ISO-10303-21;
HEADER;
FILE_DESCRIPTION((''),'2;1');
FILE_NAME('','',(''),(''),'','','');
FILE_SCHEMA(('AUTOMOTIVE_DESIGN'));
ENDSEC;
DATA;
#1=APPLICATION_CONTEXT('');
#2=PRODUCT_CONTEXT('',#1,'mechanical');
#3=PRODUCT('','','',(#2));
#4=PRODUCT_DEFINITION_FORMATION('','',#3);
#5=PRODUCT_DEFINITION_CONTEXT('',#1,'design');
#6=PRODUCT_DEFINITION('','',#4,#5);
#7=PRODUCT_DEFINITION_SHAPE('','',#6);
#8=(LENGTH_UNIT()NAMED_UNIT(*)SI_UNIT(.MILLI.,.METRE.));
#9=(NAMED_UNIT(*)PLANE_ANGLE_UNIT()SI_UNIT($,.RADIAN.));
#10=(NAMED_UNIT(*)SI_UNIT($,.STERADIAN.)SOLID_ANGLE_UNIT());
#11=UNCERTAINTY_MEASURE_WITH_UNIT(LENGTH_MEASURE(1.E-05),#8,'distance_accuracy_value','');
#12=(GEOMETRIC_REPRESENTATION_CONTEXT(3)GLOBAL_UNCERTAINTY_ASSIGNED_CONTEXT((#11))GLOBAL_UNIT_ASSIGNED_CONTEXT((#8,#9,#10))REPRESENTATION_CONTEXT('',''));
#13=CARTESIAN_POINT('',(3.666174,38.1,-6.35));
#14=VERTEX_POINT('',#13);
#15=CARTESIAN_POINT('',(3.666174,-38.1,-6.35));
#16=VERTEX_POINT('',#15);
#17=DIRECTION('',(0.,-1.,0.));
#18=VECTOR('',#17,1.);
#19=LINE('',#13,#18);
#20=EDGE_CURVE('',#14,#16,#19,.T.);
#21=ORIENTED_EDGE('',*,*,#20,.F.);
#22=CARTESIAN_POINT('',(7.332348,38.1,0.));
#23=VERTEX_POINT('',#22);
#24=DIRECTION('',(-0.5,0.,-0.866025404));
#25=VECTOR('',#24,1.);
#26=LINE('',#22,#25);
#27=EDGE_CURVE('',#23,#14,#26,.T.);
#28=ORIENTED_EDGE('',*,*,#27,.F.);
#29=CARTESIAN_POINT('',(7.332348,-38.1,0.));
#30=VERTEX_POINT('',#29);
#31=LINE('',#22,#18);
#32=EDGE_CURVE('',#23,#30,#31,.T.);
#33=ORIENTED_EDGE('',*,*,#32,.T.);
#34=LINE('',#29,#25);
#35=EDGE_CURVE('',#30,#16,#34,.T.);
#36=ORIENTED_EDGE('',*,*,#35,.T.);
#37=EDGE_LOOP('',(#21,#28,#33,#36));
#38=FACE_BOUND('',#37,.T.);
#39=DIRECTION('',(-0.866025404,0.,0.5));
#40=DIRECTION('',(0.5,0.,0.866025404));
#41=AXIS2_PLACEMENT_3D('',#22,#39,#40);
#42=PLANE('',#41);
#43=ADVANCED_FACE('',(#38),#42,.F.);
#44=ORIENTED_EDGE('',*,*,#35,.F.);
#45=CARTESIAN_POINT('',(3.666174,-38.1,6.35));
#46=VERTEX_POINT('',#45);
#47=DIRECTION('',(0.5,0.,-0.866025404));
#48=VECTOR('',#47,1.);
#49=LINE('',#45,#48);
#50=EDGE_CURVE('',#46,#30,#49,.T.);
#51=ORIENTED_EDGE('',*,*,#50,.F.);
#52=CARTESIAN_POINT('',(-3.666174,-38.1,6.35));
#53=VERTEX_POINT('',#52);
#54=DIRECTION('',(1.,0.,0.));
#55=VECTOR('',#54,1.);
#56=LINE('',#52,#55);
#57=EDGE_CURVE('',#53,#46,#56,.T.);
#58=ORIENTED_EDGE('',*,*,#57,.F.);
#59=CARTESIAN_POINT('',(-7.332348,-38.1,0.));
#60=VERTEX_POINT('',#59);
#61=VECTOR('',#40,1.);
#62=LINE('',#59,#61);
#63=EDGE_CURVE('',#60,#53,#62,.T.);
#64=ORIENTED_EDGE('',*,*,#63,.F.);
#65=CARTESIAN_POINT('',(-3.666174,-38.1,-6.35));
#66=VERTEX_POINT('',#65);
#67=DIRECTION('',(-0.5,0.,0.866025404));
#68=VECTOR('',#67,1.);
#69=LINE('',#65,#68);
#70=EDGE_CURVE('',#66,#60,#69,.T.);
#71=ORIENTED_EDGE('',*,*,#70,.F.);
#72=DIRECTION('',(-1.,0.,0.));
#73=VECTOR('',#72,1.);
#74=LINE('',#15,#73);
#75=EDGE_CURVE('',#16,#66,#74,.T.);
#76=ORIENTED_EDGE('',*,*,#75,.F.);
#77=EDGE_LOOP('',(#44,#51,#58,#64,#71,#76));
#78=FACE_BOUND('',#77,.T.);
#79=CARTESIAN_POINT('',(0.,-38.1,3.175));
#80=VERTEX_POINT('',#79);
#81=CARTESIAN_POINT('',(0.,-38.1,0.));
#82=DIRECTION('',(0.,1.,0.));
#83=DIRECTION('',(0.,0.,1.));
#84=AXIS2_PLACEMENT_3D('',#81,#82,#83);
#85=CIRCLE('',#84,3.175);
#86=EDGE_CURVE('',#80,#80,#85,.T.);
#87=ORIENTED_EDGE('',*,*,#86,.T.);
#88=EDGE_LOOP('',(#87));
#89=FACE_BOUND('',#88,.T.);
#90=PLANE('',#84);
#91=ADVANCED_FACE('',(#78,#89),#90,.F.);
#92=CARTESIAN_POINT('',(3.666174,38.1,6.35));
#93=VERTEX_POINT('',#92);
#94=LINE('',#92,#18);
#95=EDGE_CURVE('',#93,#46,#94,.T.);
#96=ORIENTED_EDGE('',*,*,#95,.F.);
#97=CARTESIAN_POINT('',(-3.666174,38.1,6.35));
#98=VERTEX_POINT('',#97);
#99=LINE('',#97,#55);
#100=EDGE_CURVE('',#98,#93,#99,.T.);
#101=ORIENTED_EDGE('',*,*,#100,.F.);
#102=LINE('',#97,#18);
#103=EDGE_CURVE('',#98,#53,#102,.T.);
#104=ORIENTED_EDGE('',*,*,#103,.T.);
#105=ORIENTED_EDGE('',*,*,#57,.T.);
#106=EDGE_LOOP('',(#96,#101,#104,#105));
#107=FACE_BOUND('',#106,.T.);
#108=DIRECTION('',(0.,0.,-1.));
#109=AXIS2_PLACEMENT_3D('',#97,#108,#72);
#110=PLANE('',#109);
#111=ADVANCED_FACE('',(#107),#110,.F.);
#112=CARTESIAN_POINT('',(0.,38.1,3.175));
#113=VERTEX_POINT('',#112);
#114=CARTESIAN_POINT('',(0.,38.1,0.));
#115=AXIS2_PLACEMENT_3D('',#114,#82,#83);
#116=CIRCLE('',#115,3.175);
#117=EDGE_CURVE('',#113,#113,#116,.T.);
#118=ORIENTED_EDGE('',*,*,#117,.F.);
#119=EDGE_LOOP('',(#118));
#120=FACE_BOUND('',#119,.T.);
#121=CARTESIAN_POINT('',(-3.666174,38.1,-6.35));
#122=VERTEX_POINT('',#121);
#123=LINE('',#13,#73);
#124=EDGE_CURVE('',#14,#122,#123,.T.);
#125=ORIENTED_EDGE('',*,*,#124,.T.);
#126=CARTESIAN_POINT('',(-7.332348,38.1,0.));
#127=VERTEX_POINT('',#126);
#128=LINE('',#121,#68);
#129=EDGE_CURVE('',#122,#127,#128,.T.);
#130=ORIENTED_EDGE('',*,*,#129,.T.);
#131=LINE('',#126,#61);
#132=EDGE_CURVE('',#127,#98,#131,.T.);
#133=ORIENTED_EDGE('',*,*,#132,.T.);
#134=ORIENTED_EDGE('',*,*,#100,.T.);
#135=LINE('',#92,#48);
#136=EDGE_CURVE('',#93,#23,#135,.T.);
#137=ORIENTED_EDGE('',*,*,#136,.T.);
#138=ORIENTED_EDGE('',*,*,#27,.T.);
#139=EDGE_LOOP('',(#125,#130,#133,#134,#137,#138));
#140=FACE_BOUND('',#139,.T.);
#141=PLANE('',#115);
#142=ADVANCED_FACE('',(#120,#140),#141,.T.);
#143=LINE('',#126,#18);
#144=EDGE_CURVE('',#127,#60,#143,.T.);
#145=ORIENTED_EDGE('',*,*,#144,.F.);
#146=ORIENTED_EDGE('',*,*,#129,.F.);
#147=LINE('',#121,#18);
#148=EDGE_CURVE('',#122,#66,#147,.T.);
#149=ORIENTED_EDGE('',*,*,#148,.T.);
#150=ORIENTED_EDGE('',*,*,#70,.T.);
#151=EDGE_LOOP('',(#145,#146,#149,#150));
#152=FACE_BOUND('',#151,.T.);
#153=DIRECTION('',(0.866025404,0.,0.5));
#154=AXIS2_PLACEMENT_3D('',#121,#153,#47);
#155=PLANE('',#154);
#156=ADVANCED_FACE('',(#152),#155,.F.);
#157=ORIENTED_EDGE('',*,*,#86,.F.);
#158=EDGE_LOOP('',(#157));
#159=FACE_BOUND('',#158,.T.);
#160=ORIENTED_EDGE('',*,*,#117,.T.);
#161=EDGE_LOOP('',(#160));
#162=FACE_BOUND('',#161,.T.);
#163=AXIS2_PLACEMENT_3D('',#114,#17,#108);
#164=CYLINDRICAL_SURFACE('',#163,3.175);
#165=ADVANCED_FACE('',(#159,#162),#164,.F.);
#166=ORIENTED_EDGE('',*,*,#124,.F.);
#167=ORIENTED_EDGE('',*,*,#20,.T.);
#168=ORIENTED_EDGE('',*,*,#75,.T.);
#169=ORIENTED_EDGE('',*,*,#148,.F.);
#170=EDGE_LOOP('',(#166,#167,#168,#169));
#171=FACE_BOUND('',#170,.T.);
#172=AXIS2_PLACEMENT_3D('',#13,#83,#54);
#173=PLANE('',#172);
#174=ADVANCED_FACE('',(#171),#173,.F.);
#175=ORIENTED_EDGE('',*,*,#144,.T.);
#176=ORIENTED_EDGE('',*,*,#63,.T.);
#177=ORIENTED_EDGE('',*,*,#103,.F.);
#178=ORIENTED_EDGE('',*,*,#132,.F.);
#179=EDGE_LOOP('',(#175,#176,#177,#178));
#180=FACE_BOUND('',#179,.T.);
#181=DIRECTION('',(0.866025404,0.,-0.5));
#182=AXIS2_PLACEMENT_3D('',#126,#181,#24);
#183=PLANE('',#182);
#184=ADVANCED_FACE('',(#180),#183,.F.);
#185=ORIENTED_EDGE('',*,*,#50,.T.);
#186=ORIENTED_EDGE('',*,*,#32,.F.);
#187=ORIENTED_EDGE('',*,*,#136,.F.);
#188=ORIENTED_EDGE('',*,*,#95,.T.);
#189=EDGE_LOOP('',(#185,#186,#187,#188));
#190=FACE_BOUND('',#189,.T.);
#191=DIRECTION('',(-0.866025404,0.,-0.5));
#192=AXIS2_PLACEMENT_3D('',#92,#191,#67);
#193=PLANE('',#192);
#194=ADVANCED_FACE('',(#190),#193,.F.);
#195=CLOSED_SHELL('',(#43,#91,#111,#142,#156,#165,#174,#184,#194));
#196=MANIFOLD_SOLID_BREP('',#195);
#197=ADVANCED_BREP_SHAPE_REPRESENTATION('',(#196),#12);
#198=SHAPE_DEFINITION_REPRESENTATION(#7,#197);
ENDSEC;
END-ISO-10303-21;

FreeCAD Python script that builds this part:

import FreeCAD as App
import Part
import Sketcher
from FreeCAD import Vector
Q = App.Units.Quantity

doc = App.newDocument("Part")
body = doc.addObject("PartDesign::Body", "Body")

# Sketch on XZ plane
sketch1 = body.newObject("Sketcher::SketchObject", "Sketch")
sketch1.AttachmentSupport = (doc.getObject("XZ_Plane"), [""])
sketch1.MapMode = "FlatFace"
sketch1.addGeometry(Part.LineSegment(Vector(3.7, 6.3, 0), Vector(7.3, 0, 0)), False)
sketch1.addGeometry(Part.LineSegment(Vector(7.3, 0, 0), Vector(3.7, -6.3, 0)), False)
sketch1.addGeometry(Part.LineSegment(Vector(3.7, -6.3, 0), Vector(-3.7, -6.3, 0)), False)
sketch1.addGeometry(Part.LineSegment(Vector(-3.7, -6.3, 0), Vector(-7.3, 0, 0)), False)
sketch1.addGeometry(Part.LineSegment(Vector(-7.3, 0, 0), Vector(-3.7, 6.3, 0)), False)
sketch1.addGeometry(Part.LineSegment(Vector(-3.7, 6.3, 0), Vector(3.7, 6.3, 0)), False)
sketch1.addGeometry(Part.Circle(Vector(0, 0, 0), Vector(0, 0, 1), 3.2), False)
sketch1.addConstraint(Sketcher.Constraint("Coincident", 0, 2, 1, 1))
sketch1.addConstraint(Sketcher.Constraint("Coincident", 1, 2, 2, 1))
sketch1.addConstraint(Sketcher.Constraint("Coincident", 2, 2, 3, 1))
sketch1.addConstraint(Sketcher.Constraint("Coincident", 3, 2, 4, 1))
sketch1.addConstraint(Sketcher.Constraint("Coincident", 4, 2, 5, 1))
sketch1.addConstraint(Sketcher.Constraint("Coincident", 5, 2, 0, 1))
sketch1.addConstraint(Sketcher.Constraint("Horizontal", 2))
sketch1.addConstraint(Sketcher.Constraint("Horizontal", 5))
sketch1.addConstraint(Sketcher.Constraint("Coincident", 6, 3, -1, 1))
sketch1.addConstraint(Sketcher.Constraint("Symmetric", 0, 2, 3, 2, -1, 1))
sketch1.addConstraint(Sketcher.Constraint("Symmetric", 1, 2, 4, 2, -1, 1))
sketch1.addConstraint(Sketcher.Constraint("PointOnObject", 0, 2, -1))
sketch1.addConstraint(Sketcher.Constraint("Parallel", 0, 3))
sketch1.addConstraint(Sketcher.Constraint("Vertical", 2, 2, 4, 2))
sketch1.addConstraint(Sketcher.Constraint("Diameter", 6, Q("0.25 in")))
sketch1.addConstraint(Sketcher.Constraint("Angle", 0, Q("-60 deg")))
sketch1.addConstraint(Sketcher.Constraint("DistanceY", 2, 2, 4, 2, Q("0.5 in")))
sketch1.addConstraint(Sketcher.Constraint("DistanceX", 2, 2, 2, 1, 7.332348))
pad1 = body.newObject("PartDesign::Pad", "Pad")
pad1.Profile = sketch1
pad1.Length = Q("3 in")
pad1.Midplane = True

doc.recompute()
